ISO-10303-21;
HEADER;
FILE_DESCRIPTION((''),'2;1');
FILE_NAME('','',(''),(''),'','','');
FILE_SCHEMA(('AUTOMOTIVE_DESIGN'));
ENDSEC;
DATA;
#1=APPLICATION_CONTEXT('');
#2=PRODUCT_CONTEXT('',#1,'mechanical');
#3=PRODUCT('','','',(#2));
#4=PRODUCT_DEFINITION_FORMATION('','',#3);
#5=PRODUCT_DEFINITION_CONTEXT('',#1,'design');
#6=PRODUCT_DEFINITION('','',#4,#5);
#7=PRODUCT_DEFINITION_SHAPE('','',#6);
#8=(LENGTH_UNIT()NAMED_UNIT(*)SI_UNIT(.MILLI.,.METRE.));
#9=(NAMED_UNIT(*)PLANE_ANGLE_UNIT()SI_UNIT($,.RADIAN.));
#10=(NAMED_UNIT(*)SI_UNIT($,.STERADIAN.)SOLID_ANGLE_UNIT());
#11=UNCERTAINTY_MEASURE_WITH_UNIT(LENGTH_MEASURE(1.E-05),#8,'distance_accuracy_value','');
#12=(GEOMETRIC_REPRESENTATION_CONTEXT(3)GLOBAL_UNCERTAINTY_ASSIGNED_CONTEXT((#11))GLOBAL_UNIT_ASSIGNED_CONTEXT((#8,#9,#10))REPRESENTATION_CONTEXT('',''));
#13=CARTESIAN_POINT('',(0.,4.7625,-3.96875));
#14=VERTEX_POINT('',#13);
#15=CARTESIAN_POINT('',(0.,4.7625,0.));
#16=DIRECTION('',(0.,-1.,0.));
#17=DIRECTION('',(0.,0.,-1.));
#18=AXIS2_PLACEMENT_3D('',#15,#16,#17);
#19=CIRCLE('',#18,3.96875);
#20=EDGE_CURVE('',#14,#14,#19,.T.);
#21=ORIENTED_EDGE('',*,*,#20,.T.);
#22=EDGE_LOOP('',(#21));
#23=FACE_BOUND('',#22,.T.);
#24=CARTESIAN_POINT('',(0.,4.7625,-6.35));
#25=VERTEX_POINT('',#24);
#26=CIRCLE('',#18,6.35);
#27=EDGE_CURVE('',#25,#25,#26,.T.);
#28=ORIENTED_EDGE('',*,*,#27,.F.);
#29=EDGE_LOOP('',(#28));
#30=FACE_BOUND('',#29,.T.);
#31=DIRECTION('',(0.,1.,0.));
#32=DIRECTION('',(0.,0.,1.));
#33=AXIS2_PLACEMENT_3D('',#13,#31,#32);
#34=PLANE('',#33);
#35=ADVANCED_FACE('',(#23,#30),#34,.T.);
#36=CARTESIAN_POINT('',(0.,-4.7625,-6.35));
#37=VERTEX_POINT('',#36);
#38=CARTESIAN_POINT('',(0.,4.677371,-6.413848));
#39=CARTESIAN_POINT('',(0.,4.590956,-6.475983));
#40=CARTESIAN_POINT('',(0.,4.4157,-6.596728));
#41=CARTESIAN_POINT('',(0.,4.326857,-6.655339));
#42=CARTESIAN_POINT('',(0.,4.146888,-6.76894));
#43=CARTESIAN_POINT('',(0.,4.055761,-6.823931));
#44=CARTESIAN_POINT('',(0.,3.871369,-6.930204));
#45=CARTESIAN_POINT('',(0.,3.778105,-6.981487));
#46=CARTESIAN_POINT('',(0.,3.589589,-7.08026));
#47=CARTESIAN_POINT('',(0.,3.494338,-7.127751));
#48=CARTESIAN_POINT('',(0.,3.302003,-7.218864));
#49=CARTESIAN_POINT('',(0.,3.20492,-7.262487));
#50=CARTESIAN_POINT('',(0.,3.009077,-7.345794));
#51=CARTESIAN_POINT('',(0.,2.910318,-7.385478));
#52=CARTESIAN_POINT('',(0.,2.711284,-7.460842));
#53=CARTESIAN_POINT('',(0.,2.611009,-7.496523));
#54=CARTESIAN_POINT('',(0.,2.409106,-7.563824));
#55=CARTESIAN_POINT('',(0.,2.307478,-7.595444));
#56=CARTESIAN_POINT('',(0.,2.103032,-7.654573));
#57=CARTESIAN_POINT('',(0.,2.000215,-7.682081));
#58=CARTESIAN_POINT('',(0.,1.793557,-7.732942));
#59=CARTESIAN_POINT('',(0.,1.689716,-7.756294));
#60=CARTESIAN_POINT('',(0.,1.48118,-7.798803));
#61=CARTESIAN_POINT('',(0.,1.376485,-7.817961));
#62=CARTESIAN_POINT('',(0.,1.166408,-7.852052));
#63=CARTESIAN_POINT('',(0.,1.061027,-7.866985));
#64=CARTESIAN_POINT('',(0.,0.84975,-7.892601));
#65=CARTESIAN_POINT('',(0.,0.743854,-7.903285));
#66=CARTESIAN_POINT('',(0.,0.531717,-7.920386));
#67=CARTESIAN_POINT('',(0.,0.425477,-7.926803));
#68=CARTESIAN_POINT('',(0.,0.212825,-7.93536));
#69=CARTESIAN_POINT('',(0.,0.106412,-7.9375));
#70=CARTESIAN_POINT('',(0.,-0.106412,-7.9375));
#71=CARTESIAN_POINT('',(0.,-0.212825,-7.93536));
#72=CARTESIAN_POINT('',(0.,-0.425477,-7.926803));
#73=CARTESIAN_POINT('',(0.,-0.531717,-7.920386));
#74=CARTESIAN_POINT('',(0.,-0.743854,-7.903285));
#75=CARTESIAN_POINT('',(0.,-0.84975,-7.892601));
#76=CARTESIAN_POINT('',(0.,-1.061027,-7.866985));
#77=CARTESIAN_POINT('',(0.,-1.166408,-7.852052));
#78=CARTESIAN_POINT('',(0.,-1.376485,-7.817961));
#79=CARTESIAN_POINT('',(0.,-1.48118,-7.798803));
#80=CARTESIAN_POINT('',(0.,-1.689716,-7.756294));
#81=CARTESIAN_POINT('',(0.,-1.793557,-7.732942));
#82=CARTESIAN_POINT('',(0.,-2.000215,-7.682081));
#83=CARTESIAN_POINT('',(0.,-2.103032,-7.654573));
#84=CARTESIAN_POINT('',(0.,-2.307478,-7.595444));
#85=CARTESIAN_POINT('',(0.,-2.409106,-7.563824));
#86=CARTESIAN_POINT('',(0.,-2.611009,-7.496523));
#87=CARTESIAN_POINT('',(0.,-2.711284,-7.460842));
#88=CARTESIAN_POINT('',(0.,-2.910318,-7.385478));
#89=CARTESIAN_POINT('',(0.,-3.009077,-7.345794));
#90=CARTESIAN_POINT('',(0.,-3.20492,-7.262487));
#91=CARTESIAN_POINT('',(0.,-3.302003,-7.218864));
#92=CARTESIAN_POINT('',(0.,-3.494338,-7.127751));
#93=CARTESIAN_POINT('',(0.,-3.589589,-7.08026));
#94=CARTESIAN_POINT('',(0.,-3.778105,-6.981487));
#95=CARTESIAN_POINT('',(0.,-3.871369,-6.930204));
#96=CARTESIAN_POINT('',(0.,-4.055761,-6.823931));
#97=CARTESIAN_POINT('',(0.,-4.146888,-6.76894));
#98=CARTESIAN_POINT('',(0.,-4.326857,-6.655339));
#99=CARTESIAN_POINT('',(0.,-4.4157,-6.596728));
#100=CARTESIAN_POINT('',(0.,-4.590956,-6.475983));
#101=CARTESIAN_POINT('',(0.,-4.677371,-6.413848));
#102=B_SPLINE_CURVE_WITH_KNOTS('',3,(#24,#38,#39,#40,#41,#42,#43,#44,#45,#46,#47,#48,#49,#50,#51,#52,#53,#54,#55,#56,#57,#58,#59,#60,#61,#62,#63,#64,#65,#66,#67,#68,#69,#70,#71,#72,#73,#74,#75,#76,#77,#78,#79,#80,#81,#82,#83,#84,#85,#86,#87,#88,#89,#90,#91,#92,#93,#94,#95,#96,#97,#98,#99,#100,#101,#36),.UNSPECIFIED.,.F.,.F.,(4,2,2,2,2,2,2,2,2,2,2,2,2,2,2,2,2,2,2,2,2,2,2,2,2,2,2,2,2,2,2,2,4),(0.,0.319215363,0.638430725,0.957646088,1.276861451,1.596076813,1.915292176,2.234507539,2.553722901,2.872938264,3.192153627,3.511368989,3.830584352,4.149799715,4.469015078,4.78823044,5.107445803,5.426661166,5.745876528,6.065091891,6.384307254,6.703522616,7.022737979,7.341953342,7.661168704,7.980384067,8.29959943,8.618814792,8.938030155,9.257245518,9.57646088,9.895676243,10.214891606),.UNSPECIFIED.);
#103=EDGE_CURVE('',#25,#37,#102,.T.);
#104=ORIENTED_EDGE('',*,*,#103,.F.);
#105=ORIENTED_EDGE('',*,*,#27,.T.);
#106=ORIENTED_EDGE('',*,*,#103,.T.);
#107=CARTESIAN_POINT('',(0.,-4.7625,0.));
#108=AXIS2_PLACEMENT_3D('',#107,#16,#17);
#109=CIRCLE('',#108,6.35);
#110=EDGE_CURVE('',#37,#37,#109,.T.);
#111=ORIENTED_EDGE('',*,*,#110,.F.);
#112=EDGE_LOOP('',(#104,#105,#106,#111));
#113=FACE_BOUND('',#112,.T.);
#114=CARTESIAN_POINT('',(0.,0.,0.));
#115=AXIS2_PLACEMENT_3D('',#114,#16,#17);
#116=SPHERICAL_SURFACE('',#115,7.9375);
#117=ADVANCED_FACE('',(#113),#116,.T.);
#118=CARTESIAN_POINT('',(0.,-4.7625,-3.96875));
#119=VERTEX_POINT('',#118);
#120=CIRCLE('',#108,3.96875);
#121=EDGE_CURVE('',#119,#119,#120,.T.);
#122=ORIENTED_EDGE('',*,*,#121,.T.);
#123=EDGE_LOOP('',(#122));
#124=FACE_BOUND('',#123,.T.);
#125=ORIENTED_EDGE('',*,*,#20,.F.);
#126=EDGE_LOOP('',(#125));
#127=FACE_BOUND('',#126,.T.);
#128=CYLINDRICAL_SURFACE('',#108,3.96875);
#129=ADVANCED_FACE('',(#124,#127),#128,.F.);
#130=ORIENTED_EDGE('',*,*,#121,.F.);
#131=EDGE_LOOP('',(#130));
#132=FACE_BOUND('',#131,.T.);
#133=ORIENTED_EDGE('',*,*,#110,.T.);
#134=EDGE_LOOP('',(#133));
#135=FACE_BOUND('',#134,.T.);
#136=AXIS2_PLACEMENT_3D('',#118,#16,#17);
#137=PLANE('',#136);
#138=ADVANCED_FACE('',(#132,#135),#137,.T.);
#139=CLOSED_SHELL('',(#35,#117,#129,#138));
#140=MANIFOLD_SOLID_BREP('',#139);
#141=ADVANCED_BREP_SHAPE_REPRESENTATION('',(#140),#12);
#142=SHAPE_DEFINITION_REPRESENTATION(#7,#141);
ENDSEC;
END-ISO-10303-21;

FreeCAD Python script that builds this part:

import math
import FreeCAD as App
import Part
import Sketcher
from FreeCAD import Vector
Q = App.Units.Quantity

doc = App.newDocument("Part")
params = doc.addObject("Spreadsheet::Sheet", "Params")
for row, (alias, value) in enumerate([
    ("sketch1_radius", "0.3125 in"),
    ("sketch1_width", "0.375 in"),
    ("sketch1_height", "0.09375 in"),
    ("revolution_angle", "360 deg"),
], start=1):
    params.set(f"A{row}", alias)
    params.set(f"B{row}", "=" + value)
    params.setAlias(f"B{row}", alias)

body = doc.addObject("PartDesign::Body", "Body")

# Sketch on YZ plane
sketch1 = body.newObject("Sketcher::SketchObject", "Sketch")
sketch1.AttachmentSupport = (doc.getObject("YZ_Plane"), [""])
sketch1.MapMode = "FlatFace"
sketch1.addGeometry(Part.LineSegment(Vector(4.8, -4, 0), Vector(-4.8, -4, 0)), False)
sketch1.addGeometry(Part.LineSegment(Vector(-4.8, -4, 0), Vector(-4.8, -6.3, 0)), False)
sketch1.addGeometry(Part.ArcOfCircle(Part.Circle(Vector(0, 0, 0), Vector(0, 0, 1), 7.9), math.radians(-127), math.radians(-53)), False)
sketch1.addGeometry(Part.LineSegment(Vector(4.8, -6.3, 0), Vector(4.8, -4, 0)), False)
sketch1.addConstraint(Sketcher.Constraint("Coincident", 0, 2, 1, 1))
sketch1.addConstraint(Sketcher.Constraint("Coincident", 1, 2, 2, 1))
sketch1.addConstraint(Sketcher.Constraint("Coincident", 2, 2, 3, 1))
sketch1.addConstraint(Sketcher.Constraint("Coincident", 3, 2, 0, 1))
sketch1.addConstraint(Sketcher.Constraint("Horizontal", 0))
sketch1.addConstraint(Sketcher.Constraint("Vertical", 1))
sketch1.addConstraint(Sketcher.Constraint("Vertical", 3))
sketch1.addConstraint(Sketcher.Constraint("Coincident", 2, 3, -1, 1))
sketch1.addConstraint(Sketcher.Constraint("Horizontal", 1, 2, 2, 2))
sketch1.addConstraint(Sketcher.Constraint("Radius", 2, Q("0.3125 in")))
sketch1.addConstraint(Sketcher.Constraint("DistanceX", 0, 2, 0, 1, Q("0.375 in")))
sketch1.addConstraint(Sketcher.Constraint("DistanceY", 1, 2, 1, 1, Q("0.09375 in")))
sketch1.setExpression("Constraints[9]", "Params.sketch1_radius")
sketch1.setExpression("Constraints[10]", "Params.sketch1_width")
sketch1.setExpression("Constraints[11]", "Params.sketch1_height")
revolution = body.newObject("PartDesign::Revolution", "Revolution")
revolution.Profile = sketch1
revolution.ReferenceAxis = (sketch1, ["H_Axis"])
revolution.setExpression("Angle", "Params.revolution_angle")

doc.recompute()
